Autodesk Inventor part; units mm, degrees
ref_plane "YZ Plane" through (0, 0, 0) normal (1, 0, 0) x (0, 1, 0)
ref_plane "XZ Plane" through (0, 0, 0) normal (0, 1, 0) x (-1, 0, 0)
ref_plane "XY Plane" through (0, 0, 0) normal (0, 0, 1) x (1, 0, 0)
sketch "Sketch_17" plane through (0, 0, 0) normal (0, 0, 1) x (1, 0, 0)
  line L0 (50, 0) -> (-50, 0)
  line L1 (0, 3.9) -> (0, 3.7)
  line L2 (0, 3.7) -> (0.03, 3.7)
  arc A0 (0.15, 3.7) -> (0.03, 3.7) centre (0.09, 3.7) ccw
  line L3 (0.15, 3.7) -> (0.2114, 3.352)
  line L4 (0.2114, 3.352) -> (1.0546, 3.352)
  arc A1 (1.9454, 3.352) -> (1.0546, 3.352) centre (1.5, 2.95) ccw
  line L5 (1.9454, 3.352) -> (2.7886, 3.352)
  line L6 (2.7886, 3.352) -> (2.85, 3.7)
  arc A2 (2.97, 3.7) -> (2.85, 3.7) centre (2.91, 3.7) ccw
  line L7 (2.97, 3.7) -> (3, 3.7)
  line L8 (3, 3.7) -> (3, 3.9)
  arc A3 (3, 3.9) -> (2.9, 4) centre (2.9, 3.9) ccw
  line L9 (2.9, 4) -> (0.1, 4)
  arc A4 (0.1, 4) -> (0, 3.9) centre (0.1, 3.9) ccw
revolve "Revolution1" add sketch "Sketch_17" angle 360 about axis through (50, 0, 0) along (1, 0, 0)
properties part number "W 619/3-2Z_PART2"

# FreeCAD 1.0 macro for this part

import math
import FreeCAD as App
import Part
import Sketcher
Q = App.Units.Quantity

doc = App.newDocument("Part")
body = doc.addObject("PartDesign::Body", "Body")

sketch1 = doc.addObject("Sketcher::SketchObject", "Sketch")
body.addObject(sketch1)
sketch1.AttachmentSupport = (doc.XY_Plane, [""])
sketch1.MapMode = "FlatFace"
sketch1.addGeometry(Part.ArcOfCircle(Part.Circle(App.Vector(0.1, 3.9, 0), App.Vector(0, 0, 1), 0.1), math.radians(90), math.radians(180)), False)
sketch1.addGeometry(Part.LineSegment(App.Vector(0, 3.9, 0), App.Vector(0, 3.7, 0)), False)
sketch1.addGeometry(Part.LineSegment(App.Vector(0, 3.7, 0), App.Vector(0.03, 3.7, 0)), False)
sketch1.addGeometry(Part.ArcOfCircle(Part.Circle(App.Vector(0.09, 3.7, 0), App.Vector(0, 0, 1), 0.06), math.radians(0), math.radians(180)), False)
sketch1.addGeometry(Part.LineSegment(App.Vector(0.15, 3.7, 0), App.Vector(0.211, 3.352, 0)), False)
sketch1.addGeometry(Part.LineSegment(App.Vector(0.211, 3.352, 0), App.Vector(1.055, 3.352, 0)), False)
sketch1.addGeometry(Part.ArcOfCircle(Part.Circle(App.Vector(1.5, 2.95, 0), App.Vector(0, 0, 1), 0.6), math.radians(42), math.radians(138)), False)
sketch1.addGeometry(Part.LineSegment(App.Vector(1.945, 3.352, 0), App.Vector(2.789, 3.352, 0)), False)
sketch1.addGeometry(Part.LineSegment(App.Vector(2.789, 3.352, 0), App.Vector(2.85, 3.7, 0)), False)
sketch1.addGeometry(Part.ArcOfCircle(Part.Circle(App.Vector(2.91, 3.7, 0), App.Vector(0, 0, 1), 0.06), math.radians(0), math.radians(180)), False)
sketch1.addGeometry(Part.LineSegment(App.Vector(2.97, 3.7, 0), App.Vector(3, 3.7, 0)), False)
sketch1.addGeometry(Part.LineSegment(App.Vector(3, 3.7, 0), App.Vector(3, 3.9, 0)), False)
sketch1.addGeometry(Part.ArcOfCircle(Part.Circle(App.Vector(2.9, 3.9, 0), App.Vector(0, 0, 1), 0.1), math.radians(0), math.radians(90)), False)
sketch1.addGeometry(Part.LineSegment(App.Vector(2.9, 4, 0), App.Vector(0.1, 4, 0)), False)
sketch1.addConstraint(Sketcher.Constraint("Tangent", 0, 2, 1, 1))
sketch1.addConstraint(Sketcher.Constraint("Coincident", 1, 2, 2, 1))
sketch1.addConstraint(Sketcher.Constraint("Coincident", 2, 2, 3, 2))
sketch1.addConstraint(Sketcher.Constraint("Coincident", 3, 1, 4, 1))
sketch1.addConstraint(Sketcher.Constraint("Coincident", 4, 2, 5, 1))
sketch1.addConstraint(Sketcher.Constraint("Coincident", 5, 2, 6, 2))
sketch1.addConstraint(Sketcher.Constraint("Coincident", 6, 1, 7, 1))
sketch1.addConstraint(Sketcher.Constraint("Coincident", 7, 2, 8, 1))
sketch1.addConstraint(Sketcher.Constraint("Coincident", 8, 2, 9, 2))
sketch1.addConstraint(Sketcher.Constraint("Coincident", 9, 1, 10, 1))
sketch1.addConstraint(Sketcher.Constraint("Coincident", 10, 2, 11, 1))
sketch1.addConstraint(Sketcher.Constraint("Tangent", 11, 2, 12, 1))
sketch1.addConstraint(Sketcher.Constraint("Tangent", 12, 2, 13, 1))
sketch1.addConstraint(Sketcher.Constraint("Tangent", 13, 2, 0, 1))
sketch1.addConstraint(Sketcher.Constraint("Vertical", 1))
sketch1.addConstraint(Sketcher.Constraint("Horizontal", 2))
sketch1.addConstraint(Sketcher.Constraint("Horizontal", 5))
sketch1.addConstraint(Sketcher.Constraint("Horizontal", 7))
sketch1.addConstraint(Sketcher.Constraint("Horizontal", 10))
sketch1.addConstraint(Sketcher.Constraint("Vertical", 11))
sketch1.addConstraint(Sketcher.Constraint("Horizontal", 13))
sketch1.addConstraint(Sketcher.Constraint("Equal", 3, 9))
sketch1.addConstraint(Sketcher.Constraint("Equal", 0, 12))
sketch1.addConstraint(Sketcher.Constraint("PointOnObject", 0, 2, -2))
sketch1.addConstraint(Sketcher.Constraint("Horizontal", 3, 3, 9, 3))
sketch1.addConstraint(Sketcher.Constraint("Horizontal", 9, 3, 1, 2))
sketch1.addConstraint(Sketcher.Constraint("Horizontal", 2, 2, 3, 1))
sketch1.addConstraint(Sketcher.Constraint("Horizontal", 5, 2, 6, 1))
sketch1.addConstraint(Sketcher.Constraint("Horizontal", 3, 1, 8, 2))
sketch1.addConstraint(Sketcher.Constraint("Horizontal", 8, 2, 9, 1))
sketch1.addConstraint(Sketcher.Constraint("Equal", 5, 7))
sketch1.addConstraint(Sketcher.Constraint("Equal", 2, 10))
sketch1.addConstraint(Sketcher.Constraint("Equal", 4, 8))
sketch1.addConstraint(Sketcher.Constraint("Radius", 0, Q("0.1 mm")))
sketch1.addConstraint(Sketcher.Constraint("Radius", 6, Q("0.6 mm")))
sketch1.addConstraint(Sketcher.Constraint("Radius", 3, Q("0.06 mm")))
sketch1.addConstraint(Sketcher.Constraint("DistanceX", 13, 2, 13, 1, Q("2.8 mm")))
sketch1.addConstraint(Sketcher.Constraint("DistanceY", 1, 2, 1, 1, Q("0.2 mm")))
sketch1.addConstraint(Sketcher.Constraint("DistanceY", -1, 1, 12, 2, Q("4 mm")))
sketch1.addConstraint(Sketcher.Constraint("DistanceX", 2, 1, 2, 2, Q("0.03 mm")))
sketch1.addConstraint(Sketcher.Constraint("DistanceY", -1, 1, 6, 3, Q("2.95 mm")))
sketch1.addConstraint(Sketcher.Constraint("DistanceX", 5, 1, 5, 2, Q("0.8432 mm")))
sketch1.addConstraint(Sketcher.Constraint("DistanceY", -1, 1, 4, 2, Q("3.352 mm")))
revolution = doc.addObject("PartDesign::Revolution", "Revolution")
body.addObject(revolution)
revolution.Profile = sketch1
revolution.ReferenceAxis = (sketch1, ["H_Axis"])
revolution.Angle = 360

doc.recompute()
